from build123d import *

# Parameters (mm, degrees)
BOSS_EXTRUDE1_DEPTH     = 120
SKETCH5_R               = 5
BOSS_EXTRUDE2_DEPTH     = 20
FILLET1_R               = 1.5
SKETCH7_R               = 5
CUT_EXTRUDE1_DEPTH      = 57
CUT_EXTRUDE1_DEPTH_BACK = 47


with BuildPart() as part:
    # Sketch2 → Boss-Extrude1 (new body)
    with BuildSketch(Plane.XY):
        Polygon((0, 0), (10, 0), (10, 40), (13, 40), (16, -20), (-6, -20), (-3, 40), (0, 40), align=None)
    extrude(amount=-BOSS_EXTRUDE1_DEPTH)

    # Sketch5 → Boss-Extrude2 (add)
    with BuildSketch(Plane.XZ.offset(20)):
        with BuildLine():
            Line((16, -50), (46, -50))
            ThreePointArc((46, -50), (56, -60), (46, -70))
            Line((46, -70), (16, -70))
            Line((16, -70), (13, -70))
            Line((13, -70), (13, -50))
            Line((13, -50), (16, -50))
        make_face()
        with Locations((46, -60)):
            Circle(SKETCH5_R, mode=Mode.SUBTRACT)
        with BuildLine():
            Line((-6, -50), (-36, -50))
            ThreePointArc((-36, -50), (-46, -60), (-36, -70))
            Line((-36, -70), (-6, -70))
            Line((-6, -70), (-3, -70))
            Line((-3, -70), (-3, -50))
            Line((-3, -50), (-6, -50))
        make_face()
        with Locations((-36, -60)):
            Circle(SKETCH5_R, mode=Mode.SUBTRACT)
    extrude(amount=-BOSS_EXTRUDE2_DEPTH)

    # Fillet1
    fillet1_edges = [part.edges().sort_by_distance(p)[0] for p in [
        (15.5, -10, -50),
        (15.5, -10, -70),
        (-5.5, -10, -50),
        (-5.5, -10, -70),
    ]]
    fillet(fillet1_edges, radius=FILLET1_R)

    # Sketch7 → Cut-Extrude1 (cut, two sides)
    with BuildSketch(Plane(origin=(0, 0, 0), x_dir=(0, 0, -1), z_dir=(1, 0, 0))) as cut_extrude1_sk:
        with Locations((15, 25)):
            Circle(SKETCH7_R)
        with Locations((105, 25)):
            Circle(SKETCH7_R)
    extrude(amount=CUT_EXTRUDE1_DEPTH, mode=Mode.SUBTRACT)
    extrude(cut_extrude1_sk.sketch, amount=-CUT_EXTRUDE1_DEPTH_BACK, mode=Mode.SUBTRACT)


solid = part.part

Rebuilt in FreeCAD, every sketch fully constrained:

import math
import FreeCAD as App
import Part
import Sketcher

V = App.Vector
Q = App.Units.Quantity


def edges_at(feature, points):
    """Names of the edges that pass closest to the given points."""
    edges = feature.Shape.Edges
    near = lambda p: min(range(len(edges)), key=lambda i: edges[i].distToShape(Part.Vertex(*p))[0])
    return sorted({f"Edge{near(p) + 1}" for p in points})


def add_polygon(sketch, points):
    """Adds a closed chain of lines whose ends are joined by coincident constraints."""
    first, n = sketch.GeometryCount, len(points)
    for a, b in zip(points, points[1:] + points[:1]):
        sketch.addGeometry(Part.LineSegment(App.Vector(*a, 0), App.Vector(*b, 0)), False)
    for i in range(n):
        sketch.addConstraint(Sketcher.Constraint("Coincident", first + i, 2, first + (i + 1) % n, 1))

doc = App.newDocument("Part")
params = doc.addObject("Spreadsheet::Sheet", "Params")
for row, (alias, value) in enumerate([
    ("sketch1_width", "10 mm"),
    ("sketch1_width2", "3 mm"),
    ("sketch1_width3", "22 mm"),
    ("sketch1_height", "40 mm"),
    ("pad1_length", "120 mm"),
    ("sketch2_diameter", "10 mm"),
    ("sketch2_radius", "10 mm"),
    ("sketch2_width", "33 mm"),
    ("pad2_length", "20 mm"),
    ("fillet_radius", "1.5 mm"),
    ("sketch3_diameter", "10 mm"),
], start=1):
    params.set(f"A{row}", alias)
    params.set(f"B{row}", "=" + value)
    params.setAlias(f"B{row}", alias)

body = doc.addObject("PartDesign::Body", "Body")

# Sketch on XY plane
sketch1 = body.newObject("Sketcher::SketchObject", "Sketch")
sketch1.AttachmentSupport = (doc.getObject("XY_Plane"), [""])
sketch1.MapMode = "FlatFace"
add_polygon(sketch1, [(10, 0), (0, 0), (0, 40), (-3, 40), (-6, -20), (16, -20), (13, 40), (10, 40)])  # lines 0-7
sketch1.addConstraint([
    Sketcher.Constraint("Horizontal", 0),
    Sketcher.Constraint("Vertical", 1),
    Sketcher.Constraint("Horizontal", 2),
    Sketcher.Constraint("Horizontal", 4),
    Sketcher.Constraint("Horizontal", 6),
    Sketcher.Constraint("Vertical", 7),
    Sketcher.Constraint("Coincident", 0, 2, -1, 1),
    Sketcher.Constraint("Horizontal", 2, 2, 5, 2),
    Sketcher.Constraint("Equal", 2, 6),
    Sketcher.Constraint("Equal", 3, 5),
    Sketcher.Constraint("DistanceX", 0, 2, 0, 1, Q("10 mm")),
    Sketcher.Constraint("DistanceX", 2, 2, 2, 1, Q("3 mm")),
    Sketcher.Constraint("DistanceX", 4, 1, 4, 2, Q("22 mm")),
    Sketcher.Constraint("DistanceY", 1, 1, 1, 2, Q("40 mm")),
    Sketcher.Constraint("DistanceY", 3, 2, -1, 1, Q("20 mm")),
])
sketch1.setExpression("Constraints[18]", "Params.sketch1_width")
sketch1.setExpression("Constraints[19]", "Params.sketch1_width2")
sketch1.setExpression("Constraints[20]", "Params.sketch1_width3")
sketch1.setExpression("Constraints[21]", "Params.sketch1_height")
pad1 = body.newObject("PartDesign::Pad", "Pad")
pad1.Profile = sketch1
pad1.setExpression("Length", "Params.pad1_length")
pad1.Reversed = True

# Sketch on XZ plane
sketch2 = body.newObject("Sketcher::SketchObject", "Sketch001")
sketch2.AttachmentSupport = (doc.getObject("XZ_Plane"), [""])
sketch2.MapMode = "FlatFace"
sketch2.AttachmentOffset = App.Placement(V(0, 0, 20), App.Rotation())
sketch2.addGeometry([
    Part.ArcOfCircle(Part.Circle(V(46, -60, 0), V(0, 0, 1), 10), math.radians(-90), math.radians(90)),  # 0
    Part.LineSegment(V(46, -50, 0), V(13, -50, 0)),  # 1
    Part.LineSegment(V(13, -50, 0), V(13, -70, 0)),  # 2
    Part.LineSegment(V(13, -70, 0), V(46, -70, 0)),  # 3
    Part.Circle(V(46, -60, 0), V(0, 0, 1), 5),  # 4
    Part.ArcOfCircle(Part.Circle(V(-36, -60, 0), V(0, 0, 1), 10), math.radians(90), math.radians(270)),  # 5
    Part.LineSegment(V(-36, -70, 0), V(-3, -70, 0)),  # 6
    Part.LineSegment(V(-3, -70, 0), V(-3, -50, 0)),  # 7
    Part.LineSegment(V(-3, -50, 0), V(-36, -50, 0)),  # 8
    Part.Circle(V(-36, -60, 0), V(0, 0, 1), 5),  # 9
], False)
sketch2.addConstraint([
    Sketcher.Constraint("Tangent", 0, 2, 1, 1),
    Sketcher.Constraint("Coincident", 1, 2, 2, 1),
    Sketcher.Constraint("Coincident", 2, 2, 3, 1),
    Sketcher.Constraint("Tangent", 3, 2, 0, 1),
    Sketcher.Constraint("Tangent", 5, 2, 6, 1),
    Sketcher.Constraint("Coincident", 6, 2, 7, 1),
    Sketcher.Constraint("Coincident", 7, 2, 8, 1),
    Sketcher.Constraint("Tangent", 8, 2, 5, 1),
    Sketcher.Constraint("Horizontal", 1),
    Sketcher.Constraint("Vertical", 2),
    Sketcher.Constraint("Horizontal", 3),
    Sketcher.Constraint("Horizontal", 6),
    Sketcher.Constraint("Vertical", 7),
    Sketcher.Constraint("Horizontal", 8),
    Sketcher.Constraint("Coincident", 4, 3, 0, 3),
    Sketcher.Constraint("Coincident", 9, 3, 5, 3),
    Sketcher.Constraint("Equal", 0, 5),
    Sketcher.Constraint("Equal", 4, 9),
    Sketcher.Constraint("Horizontal", 4, 3, 5, 3),
    Sketcher.Constraint("Equal", 3, 6),
    Sketcher.Constraint("Diameter", 4, Q("10 mm")),
    Sketcher.Constraint("Radius", 0, Q("10 mm")),
    Sketcher.Constraint("DistanceX", 1, 2, 1, 1, Q("33 mm")),
    Sketcher.Constraint("DistanceX", -1, 1, 0, 3, Q("46 mm")),
    Sketcher.Constraint("DistanceY", 0, 3, -1, 1, Q("60 mm")),
    Sketcher.Constraint("DistanceX", 5, 3, -1, 1, Q("36 mm")),
])
sketch2.setExpression("Constraints[20]", "Params.sketch2_diameter")
sketch2.setExpression("Constraints[21]", "Params.sketch2_radius")
sketch2.setExpression("Constraints[22]", "Params.sketch2_width")
pad2 = body.newObject("PartDesign::Pad", "Pad001")
pad2.Profile = sketch2
pad2.setExpression("Length", "Params.pad2_length")
pad2.Reversed = True
doc.recompute()

fillet = body.newObject("PartDesign::Fillet", "Fillet")
fillet.Base = (pad2, edges_at(pad2, [
    (15.5, -10, -50),
    (15.5, -10, -70),
    (-5.5, -10, -50),
    (-5.5, -10, -70),
]))
fillet.setExpression("Radius", "Params.fillet_radius")

# Sketch on YZ plane
sketch3 = body.newObject("Sketcher::SketchObject", "Sketch002")
sketch3.AttachmentSupport = (doc.getObject("YZ_Plane"), [""])
sketch3.MapMode = "FlatFace"
sketch3.addGeometry([
    Part.Circle(V(25, -15, 0), V(0, 0, 1), 5),
    Part.Circle(V(25, -105, 0), V(0, 0, 1), 5),
], False)
sketch3.addConstraint([
    Sketcher.Constraint("Equal", 0, 1),
    Sketcher.Constraint("Vertical", 0, 3, 1, 3),
    Sketcher.Constraint("Diameter", 0, Q("10 mm")),
    Sketcher.Constraint("DistanceX", -1, 1, 0, 3, Q("25 mm")),
    Sketcher.Constraint("DistanceY", 0, 3, -1, 1, Q("15 mm")),
    Sketcher.Constraint("DistanceY", 1, 3, -1, 1, Q("105 mm")),
])
sketch3.setExpression("Constraints[2]", "Params.sketch3_diameter")
pocket1 = body.newObject("PartDesign::Pocket", "Pocket")
pocket1.Profile = sketch3
pocket1.Type = "ThroughAll"
pocket1.Midplane = True

doc.recompute()
